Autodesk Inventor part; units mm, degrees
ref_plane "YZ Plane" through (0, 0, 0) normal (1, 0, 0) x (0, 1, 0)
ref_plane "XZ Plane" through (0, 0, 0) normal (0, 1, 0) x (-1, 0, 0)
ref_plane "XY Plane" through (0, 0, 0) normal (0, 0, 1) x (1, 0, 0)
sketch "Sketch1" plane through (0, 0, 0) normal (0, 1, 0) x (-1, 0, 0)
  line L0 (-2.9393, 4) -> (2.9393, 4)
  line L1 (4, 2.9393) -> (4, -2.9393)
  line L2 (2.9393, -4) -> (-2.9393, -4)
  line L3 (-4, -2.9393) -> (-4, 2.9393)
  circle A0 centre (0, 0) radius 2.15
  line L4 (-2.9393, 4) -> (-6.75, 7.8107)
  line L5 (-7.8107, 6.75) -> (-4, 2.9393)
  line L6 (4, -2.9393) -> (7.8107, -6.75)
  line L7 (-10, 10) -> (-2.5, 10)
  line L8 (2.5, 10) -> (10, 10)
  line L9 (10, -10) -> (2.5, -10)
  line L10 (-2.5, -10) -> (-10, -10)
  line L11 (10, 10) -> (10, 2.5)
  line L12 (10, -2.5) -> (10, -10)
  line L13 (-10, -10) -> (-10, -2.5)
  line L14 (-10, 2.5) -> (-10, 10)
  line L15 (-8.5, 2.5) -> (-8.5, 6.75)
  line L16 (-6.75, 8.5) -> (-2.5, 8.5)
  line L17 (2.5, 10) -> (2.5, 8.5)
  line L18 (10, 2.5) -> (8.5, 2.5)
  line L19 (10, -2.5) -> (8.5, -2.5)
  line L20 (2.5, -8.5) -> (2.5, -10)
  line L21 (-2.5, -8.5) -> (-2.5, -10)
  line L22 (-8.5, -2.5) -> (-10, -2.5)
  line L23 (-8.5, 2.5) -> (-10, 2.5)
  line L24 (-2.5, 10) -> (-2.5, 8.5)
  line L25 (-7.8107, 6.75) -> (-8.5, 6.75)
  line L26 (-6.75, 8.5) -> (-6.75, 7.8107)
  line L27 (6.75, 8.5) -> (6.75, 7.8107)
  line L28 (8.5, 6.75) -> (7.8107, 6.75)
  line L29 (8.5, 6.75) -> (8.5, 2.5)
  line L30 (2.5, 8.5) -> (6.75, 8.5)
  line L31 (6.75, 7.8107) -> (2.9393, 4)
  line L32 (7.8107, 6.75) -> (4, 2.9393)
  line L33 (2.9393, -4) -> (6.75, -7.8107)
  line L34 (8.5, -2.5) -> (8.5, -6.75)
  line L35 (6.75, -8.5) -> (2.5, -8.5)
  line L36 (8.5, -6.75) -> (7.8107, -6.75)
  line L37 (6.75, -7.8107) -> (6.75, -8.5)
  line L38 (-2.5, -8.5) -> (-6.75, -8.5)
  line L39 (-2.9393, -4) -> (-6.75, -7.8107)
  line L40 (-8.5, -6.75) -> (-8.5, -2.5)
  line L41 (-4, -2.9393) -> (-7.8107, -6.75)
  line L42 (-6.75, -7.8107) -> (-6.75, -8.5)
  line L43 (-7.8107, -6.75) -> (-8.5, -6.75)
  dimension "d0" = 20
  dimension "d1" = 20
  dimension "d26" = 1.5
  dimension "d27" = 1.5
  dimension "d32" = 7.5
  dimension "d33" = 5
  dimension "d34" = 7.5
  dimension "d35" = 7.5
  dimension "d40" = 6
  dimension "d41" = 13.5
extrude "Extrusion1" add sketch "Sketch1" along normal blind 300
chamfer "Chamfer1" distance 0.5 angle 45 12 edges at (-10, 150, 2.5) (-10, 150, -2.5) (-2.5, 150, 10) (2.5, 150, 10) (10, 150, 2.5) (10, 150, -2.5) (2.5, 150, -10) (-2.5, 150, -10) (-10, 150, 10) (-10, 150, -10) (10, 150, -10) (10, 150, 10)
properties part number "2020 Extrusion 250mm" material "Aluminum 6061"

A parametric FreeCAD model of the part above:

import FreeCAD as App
import Part
import Sketcher


def edges_at(feature, points):
    """Names of the edges that pass closest to the given points."""
    edges = feature.Shape.Edges
    near = lambda p: min(range(len(edges)), key=lambda i: edges[i].distToShape(Part.Vertex(*p))[0])
    return sorted({f"Edge{near(p) + 1}" for p in points})

doc = App.newDocument("Part")
body = doc.addObject("PartDesign::Body", "Body")

# Sketch on XZ plane
sketch1 = doc.addObject("Sketcher::SketchObject", "Sketch")
body.addObject(sketch1)
sketch1.AttachmentSupport = (doc.XZ_Plane, [""])
sketch1.MapMode = "FlatFace"
sketch1.addGeometry(Part.LineSegment(App.Vector(-2.9, 4, 0), App.Vector(2.9, 4, 0)), False)
sketch1.addGeometry(Part.LineSegment(App.Vector(2.9, 4, 0), App.Vector(6.8, 7.8, 0)), False)
sketch1.addGeometry(Part.LineSegment(App.Vector(6.8, 7.8, 0), App.Vector(6.8, 8.5, 0)), False)
sketch1.addGeometry(Part.LineSegment(App.Vector(6.8, 8.5, 0), App.Vector(2.5, 8.5, 0)), False)
sketch1.addGeometry(Part.LineSegment(App.Vector(2.5, 8.5, 0), App.Vector(2.5, 10, 0)), False)
sketch1.addGeometry(Part.LineSegment(App.Vector(2.5, 10, 0), App.Vector(10, 10, 0)), False)
sketch1.addGeometry(Part.LineSegment(App.Vector(10, 10, 0), App.Vector(10, 2.5, 0)), False)
sketch1.addGeometry(Part.LineSegment(App.Vector(10, 2.5, 0), App.Vector(8.5, 2.5, 0)), False)
sketch1.addGeometry(Part.LineSegment(App.Vector(8.5, 2.5, 0), App.Vector(8.5, 6.8, 0)), False)
sketch1.addGeometry(Part.LineSegment(App.Vector(8.5, 6.8, 0), App.Vector(7.8, 6.8, 0)), False)
sketch1.addGeometry(Part.LineSegment(App.Vector(7.8, 6.8, 0), App.Vector(4, 2.9, 0)), False)
sketch1.addGeometry(Part.LineSegment(App.Vector(4, 2.9, 0), App.Vector(4, -2.9, 0)), False)
sketch1.addGeometry(Part.LineSegment(App.Vector(4, -2.9, 0), App.Vector(7.8, -6.8, 0)), False)
sketch1.addGeometry(Part.LineSegment(App.Vector(7.8, -6.8, 0), App.Vector(8.5, -6.8, 0)), False)
sketch1.addGeometry(Part.LineSegment(App.Vector(8.5, -6.8, 0), App.Vector(8.5, -2.5, 0)), False)
sketch1.addGeometry(Part.LineSegment(App.Vector(8.5, -2.5, 0), App.Vector(10, -2.5, 0)), False)
sketch1.addGeometry(Part.LineSegment(App.Vector(10, -2.5, 0), App.Vector(10, -10, 0)), False)
sketch1.addGeometry(Part.LineSegment(App.Vector(10, -10, 0), App.Vector(2.5, -10, 0)), False)
sketch1.addGeometry(Part.LineSegment(App.Vector(2.5, -10, 0), App.Vector(2.5, -8.5, 0)), False)
sketch1.addGeometry(Part.LineSegment(App.Vector(2.5, -8.5, 0), App.Vector(6.8, -8.5, 0)), False)
sketch1.addGeometry(Part.LineSegment(App.Vector(6.8, -8.5, 0), App.Vector(6.8, -7.8, 0)), False)
sketch1.addGeometry(Part.LineSegment(App.Vector(6.8, -7.8, 0), App.Vector(2.9, -4, 0)), False)
sketch1.addGeometry(Part.LineSegment(App.Vector(2.9, -4, 0), App.Vector(-2.9, -4, 0)), False)
sketch1.addGeometry(Part.LineSegment(App.Vector(-2.9, -4, 0), App.Vector(-6.8, -7.8, 0)), False)
sketch1.addGeometry(Part.LineSegment(App.Vector(-6.8, -7.8, 0), App.Vector(-6.8, -8.5, 0)), False)
sketch1.addGeometry(Part.LineSegment(App.Vector(-6.8, -8.5, 0), App.Vector(-2.5, -8.5, 0)), False)
sketch1.addGeometry(Part.LineSegment(App.Vector(-2.5, -8.5, 0), App.Vector(-2.5, -10, 0)), False)
sketch1.addGeometry(Part.LineSegment(App.Vector(-2.5, -10, 0), App.Vector(-10, -10, 0)), False)
sketch1.addGeometry(Part.LineSegment(App.Vector(-10, -10, 0), App.Vector(-10, -2.5, 0)), False)
sketch1.addGeometry(Part.LineSegment(App.Vector(-10, -2.5, 0), App.Vector(-8.5, -2.5, 0)), False)
sketch1.addGeometry(Part.LineSegment(App.Vector(-8.5, -2.5, 0), App.Vector(-8.5, -6.8, 0)), False)
sketch1.addGeometry(Part.LineSegment(App.Vector(-8.5, -6.8, 0), App.Vector(-7.8, -6.8, 0)), False)
sketch1.addGeometry(Part.LineSegment(App.Vector(-7.8, -6.8, 0), App.Vector(-4, -2.9, 0)), False)
sketch1.addGeometry(Part.LineSegment(App.Vector(-4, -2.9, 0), App.Vector(-4, 2.9, 0)), False)
sketch1.addGeometry(Part.LineSegment(App.Vector(-4, 2.9, 0), App.Vector(-7.8, 6.8, 0)), False)
sketch1.addGeometry(Part.LineSegment(App.Vector(-7.8, 6.8, 0), App.Vector(-8.5, 6.8, 0)), False)
sketch1.addGeometry(Part.LineSegment(App.Vector(-8.5, 6.8, 0), App.Vector(-8.5, 2.5, 0)), False)
sketch1.addGeometry(Part.LineSegment(App.Vector(-8.5, 2.5, 0), App.Vector(-10, 2.5, 0)), False)
sketch1.addGeometry(Part.LineSegment(App.Vector(-10, 2.5, 0), App.Vector(-10, 10, 0)), False)
sketch1.addGeometry(Part.LineSegment(App.Vector(-10, 10, 0), App.Vector(-2.5, 10, 0)), False)
sketch1.addGeometry(Part.LineSegment(App.Vector(-2.5, 10, 0), App.Vector(-2.5, 8.5, 0)), False)
sketch1.addGeometry(Part.LineSegment(App.Vector(-2.5, 8.5, 0), App.Vector(-6.8, 8.5, 0)), False)
sketch1.addGeometry(Part.LineSegment(App.Vector(-6.8, 8.5, 0), App.Vector(-6.8, 7.8, 0)), False)
sketch1.addGeometry(Part.LineSegment(App.Vector(-6.8, 7.8, 0), App.Vector(-2.9, 4, 0)), False)
sketch1.addGeometry(Part.Circle(App.Vector(0, 0, 0), App.Vector(0, 0, 1), 2.1), False)
sketch1.addConstraint(Sketcher.Constraint("Coincident", 0, 2, 1, 1))
sketch1.addConstraint(Sketcher.Constraint("Coincident", 1, 2, 2, 1))
sketch1.addConstraint(Sketcher.Constraint("Coincident", 2, 2, 3, 1))
sketch1.addConstraint(Sketcher.Constraint("Coincident", 3, 2, 4, 1))
sketch1.addConstraint(Sketcher.Constraint("Coincident", 4, 2, 5, 1))
sketch1.addConstraint(Sketcher.Constraint("Coincident", 5, 2, 6, 1))
sketch1.addConstraint(Sketcher.Constraint("Coincident", 6, 2, 7, 1))
sketch1.addConstraint(Sketcher.Constraint("Coincident", 7, 2, 8, 1))
sketch1.addConstraint(Sketcher.Constraint("Coincident", 8, 2, 9, 1))
sketch1.addConstraint(Sketcher.Constraint("Coincident", 9, 2, 10, 1))
sketch1.addConstraint(Sketcher.Constraint("Coincident", 10, 2, 11, 1))
sketch1.addConstraint(Sketcher.Constraint("Coincident", 11, 2, 12, 1))
sketch1.addConstraint(Sketcher.Constraint("Coincident", 12, 2, 13, 1))
sketch1.addConstraint(Sketcher.Constraint("Coincident", 13, 2, 14, 1))
sketch1.addConstraint(Sketcher.Constraint("Coincident", 14, 2, 15, 1))
sketch1.addConstraint(Sketcher.Constraint("Coincident", 15, 2, 16, 1))
sketch1.addConstraint(Sketcher.Constraint("Coincident", 16, 2, 17, 1))
sketch1.addConstraint(Sketcher.Constraint("Coincident", 17, 2, 18, 1))
sketch1.addConstraint(Sketcher.Constraint("Coincident", 18, 2, 19, 1))
sketch1.addConstraint(Sketcher.Constraint("Coincident", 19, 2, 20, 1))
sketch1.addConstraint(Sketcher.Constraint("Coincident", 20, 2, 21, 1))
sketch1.addConstraint(Sketcher.Constraint("Coincident", 21, 2, 22, 1))
sketch1.addConstraint(Sketcher.Constraint("Coincident", 22, 2, 23, 1))
sketch1.addConstraint(Sketcher.Constraint("Coincident", 23, 2, 24, 1))
sketch1.addConstraint(Sketcher.Constraint("Coincident", 24, 2, 25, 1))
sketch1.addConstraint(Sketcher.Constraint("Coincident", 25, 2, 26, 1))
sketch1.addConstraint(Sketcher.Constraint("Coincident", 26, 2, 27, 1))
sketch1.addConstraint(Sketcher.Constraint("Coincident", 27, 2, 28, 1))
sketch1.addConstraint(Sketcher.Constraint("Coincident", 28, 2, 29, 1))
sketch1.addConstraint(Sketcher.Constraint("Coincident", 29, 2, 30, 1))
sketch1.addConstraint(Sketcher.Constraint("Coincident", 30, 2, 31, 1))
sketch1.addConstraint(Sketcher.Constraint("Coincident", 31, 2, 32, 1))
sketch1.addConstraint(Sketcher.Constraint("Coincident", 32, 2, 33, 1))
sketch1.addConstraint(Sketcher.Constraint("Coincident", 33, 2, 34, 1))
sketch1.addConstraint(Sketcher.Constraint("Coincident", 34, 2, 35, 1))
sketch1.addConstraint(Sketcher.Constraint("Coincident", 35, 2, 36, 1))
sketch1.addConstraint(Sketcher.Constraint("Coincident", 36, 2, 37, 1))
sketch1.addConstraint(Sketcher.Constraint("Coincident", 37, 2, 38, 1))
sketch1.addConstraint(Sketcher.Constraint("Coincident", 38, 2, 39, 1))
sketch1.addConstraint(Sketcher.Constraint("Coincident", 39, 2, 40, 1))
sketch1.addConstraint(Sketcher.Constraint("Coincident", 40, 2, 41, 1))
sketch1.addConstraint(Sketcher.Constraint("Coincident", 41, 2, 42, 1))
sketch1.addConstraint(Sketcher.Constraint("Coincident", 42, 2, 43, 1))
sketch1.addConstraint(Sketcher.Constraint("Coincident", 43, 2, 0, 1))
sketch1.addConstraint(Sketcher.Constraint("Horizontal", 0))
sketch1.addConstraint(Sketcher.Constraint("Vertical", 2))
sketch1.addConstraint(Sketcher.Constraint("Horizontal", 3))
sketch1.addConstraint(Sketcher.Constraint("Vertical", 4))
sketch1.addConstraint(Sketcher.Constraint("Horizontal", 5))
sketch1.addConstraint(Sketcher.Constraint("Vertical", 6))
sketch1.addConstraint(Sketcher.Constraint("Horizontal", 7))
sketch1.addConstraint(Sketcher.Constraint("Vertical", 8))
sketch1.addConstraint(Sketcher.Constraint("Horizontal", 9))
sketch1.addConstraint(Sketcher.Constraint("Vertical", 11))
sketch1.addConstraint(Sketcher.Constraint("Horizontal", 13))
sketch1.addConstraint(Sketcher.Constraint("Vertical", 14))
sketch1.addConstraint(Sketcher.Constraint("Horizontal", 15))
sketch1.addConstraint(Sketcher.Constraint("Vertical", 16))
sketch1.addConstraint(Sketcher.Constraint("Horizontal", 17))
sketch1.addConstraint(Sketcher.Constraint("Vertical", 18))
sketch1.addConstraint(Sketcher.Constraint("Horizontal", 19))
sketch1.addConstraint(Sketcher.Constraint("Vertical", 20))
sketch1.addConstraint(Sketcher.Constraint("Horizontal", 22))
sketch1.addConstraint(Sketcher.Constraint("Vertical", 24))
sketch1.addConstraint(Sketcher.Constraint("Horizontal", 25))
sketch1.addConstraint(Sketcher.Constraint("Vertical", 26))
sketch1.addConstraint(Sketcher.Constraint("Horizontal", 27))
sketch1.addConstraint(Sketcher.Constraint("Vertical", 28))
sketch1.addConstraint(Sketcher.Constraint("Horizontal", 29))
sketch1.addConstraint(Sketcher.Constraint("Vertical", 30))
sketch1.addConstraint(Sketcher.Constraint("Horizontal", 31))
sketch1.addConstraint(Sketcher.Constraint("Vertical", 33))
sketch1.addConstraint(Sketcher.Constraint("Horizontal", 35))
sketch1.addConstraint(Sketcher.Constraint("Vertical", 36))
sketch1.addConstraint(Sketcher.Constraint("Horizontal", 37))
sketch1.addConstraint(Sketcher.Constraint("Vertical", 38))
sketch1.addConstraint(Sketcher.Constraint("Horizontal", 39))
sketch1.addConstraint(Sketcher.Constraint("Vertical", 40))
sketch1.addConstraint(Sketcher.Constraint("Horizontal", 41))
sketch1.addConstraint(Sketcher.Constraint("Vertical", 42))
sketch1.addConstraint(Sketcher.Constraint("Coincident", 44, 3, -1, 1))
sketch1.addConstraint(Sketcher.Constraint("Symmetric", 0, 2, 22, 2, -1, 1))
sketch1.addConstraint(Sketcher.Constraint("Symmetric", 1, 2, 23, 2, -1, 1))
sketch1.addConstraint(Sketcher.Constraint("Symmetric", 3, 2, 25, 2, -1, 1))
sketch1.addConstraint(Sketcher.Constraint("Symmetric", 5, 2, 27, 2, -1, 1))
sketch1.addConstraint(Sketcher.Constraint("Symmetric", 7, 2, 29, 2, -1, 1))
sketch1.addConstraint(Sketcher.Constraint("Symmetric", 9, 2, 31, 2, -1, 1))
sketch1.addConstraint(Sketcher.Constraint("Symmetric", 10, 2, 32, 2, -1, 1))
sketch1.addConstraint(Sketcher.Constraint("Symmetric", 12, 2, 34, 2, -1, 1))
sketch1.addConstraint(Sketcher.Constraint("Symmetric", 14, 2, 36, 2, -1, 1))
sketch1.addConstraint(Sketcher.Constraint("Symmetric", 16, 2, 38, 2, -1, 1))
sketch1.addConstraint(Sketcher.Constraint("Symmetric", 18, 2, 40, 2, -1, 1))
sketch1.addConstraint(Sketcher.Constraint("Symmetric", 20, 2, 42, 2, -1, 1))
sketch1.addConstraint(Sketcher.Constraint("Symmetric", 20, 2, 23, 2, -2))
sketch1.addConstraint(Sketcher.Constraint("Symmetric", 18, 2, 25, 2, -2))
sketch1.addConstraint(Sketcher.Constraint("Symmetric", 16, 2, 27, 2, -2))
sketch1.addConstraint(Sketcher.Constraint("Symmetric", 14, 2, 29, 2, -2))
sketch1.addConstraint(Sketcher.Constraint("Symmetric", 12, 2, 31, 2, -2))
sketch1.addConstraint(Sketcher.Constraint("Parallel", 1, 10))
sketch1.addConstraint(Sketcher.Constraint("Perpendicular", 10, 12))
sketch1.addConstraint(Sketcher.Constraint("Parallel", 12, 21))
sketch1.addConstraint(Sketcher.Constraint("Perpendicular", 32, 34))
sketch1.addConstraint(Sketcher.Constraint("Parallel", 34, 43))
sketch1.addConstraint(Sketcher.Constraint("Horizontal", 11, 2, 32, 2))
sketch1.addConstraint(Sketcher.Constraint("Equal", 35, 2))
sketch1.addConstraint(Sketcher.Constraint("Equal", 37, 4))
sketch1.addConstraint(Sketcher.Constraint("Equal", 39, 6))
sketch1.addConstraint(Sketcher.Constraint("Equal", 41, 8))
sketch1.addConstraint(Sketcher.Constraint("Equal", 22, 11))
sketch1.addConstraint(Sketcher.Constraint("Equal", 1, 10))
sketch1.addConstraint(Sketcher.Constraint("DistanceX", 5, 1, 5, 2, 7.5))
sketch1.addConstraint(Sketcher.Constraint("DistanceX", 7, 2, 7, 1, 1.5))
sketch1.addConstraint(Sketcher.Constraint("DistanceY", 0, 2, 4, 2, 6.0))
sketch1.addConstraint(Sketcher.Constraint("DistanceY", 14, 2, 7, 2, 5.0))
sketch1.addConstraint(Sketcher.Constraint("Diameter", 44, 4.3))
sketch1.addConstraint(Sketcher.Constraint("DistanceX", 3, 2, 3, 1, 4.25))
sketch1.addConstraint(Sketcher.Constraint("DistanceX", 0, 1, 0, 2, 5.8786))
pad1 = doc.addObject("PartDesign::Pad", "Pad")
body.addObject(pad1)
pad1.Profile = sketch1
pad1.Length = 300
pad1.Reversed = True
doc.recompute()

chamfer = doc.addObject("PartDesign::Chamfer", "Chamfer")
body.addObject(chamfer)
chamfer.Base = (pad1, edges_at(pad1, [
    (-10, 150, 2.5),
    (-10, 150, -2.5),
    (-2.5, 150, 10),
    (2.5, 150, 10),
    (10, 150, 2.5),
    (10, 150, -2.5),
    (2.5, 150, -10),
    (-2.5, 150, -10),
    (-10, 150, 10),
    (-10, 150, -10),
    (10, 150, -10),
    (10, 150, 10),
]))
chamfer.Size = 0.5

doc.recompute()
